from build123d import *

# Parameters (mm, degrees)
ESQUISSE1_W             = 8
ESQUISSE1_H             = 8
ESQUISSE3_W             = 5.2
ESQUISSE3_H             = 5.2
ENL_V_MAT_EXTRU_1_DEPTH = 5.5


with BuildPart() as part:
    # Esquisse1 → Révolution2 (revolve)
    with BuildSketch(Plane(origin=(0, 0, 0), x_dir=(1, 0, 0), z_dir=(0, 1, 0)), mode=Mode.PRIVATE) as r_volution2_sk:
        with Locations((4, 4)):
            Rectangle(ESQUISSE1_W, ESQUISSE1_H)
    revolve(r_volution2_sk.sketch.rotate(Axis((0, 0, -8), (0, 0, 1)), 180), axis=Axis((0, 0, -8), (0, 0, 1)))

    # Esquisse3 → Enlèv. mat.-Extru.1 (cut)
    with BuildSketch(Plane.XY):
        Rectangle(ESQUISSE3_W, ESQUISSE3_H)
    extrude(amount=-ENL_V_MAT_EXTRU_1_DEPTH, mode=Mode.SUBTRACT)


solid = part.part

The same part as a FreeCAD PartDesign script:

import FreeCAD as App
import Part
import Sketcher
from FreeCAD import Vector
Q = App.Units.Quantity


def add_polygon(sketch, points):
    """Adds a closed chain of lines whose ends are joined by coincident constraints."""
    first, n = sketch.GeometryCount, len(points)
    for a, b in zip(points, points[1:] + points[:1]):
        sketch.addGeometry(Part.LineSegment(App.Vector(*a, 0), App.Vector(*b, 0)), False)
    for i in range(n):
        sketch.addConstraint(Sketcher.Constraint("Coincident", first + i, 2, first + (i + 1) % n, 1))

doc = App.newDocument("Part")
body = doc.addObject("PartDesign::Body", "Body")

sketch1 = body.newObject("Sketcher::SketchObject", "Sketch")
sketch1.AttachmentSupport = (doc.getObject("XZ_Plane"), [""])
sketch1.MapMode = "FlatFace"
add_polygon(sketch1, [(0, -8), (0, 0), (8, 0), (8, -8)])
sketch1.addConstraint([
    Sketcher.Constraint("Vertical", 0),
    Sketcher.Constraint("Horizontal", 1),
    Sketcher.Constraint("Vertical", 2),
    Sketcher.Constraint("Horizontal", 3),
    Sketcher.Constraint("Coincident", 0, 2, -1, 1),
    Sketcher.Constraint("Equal", 3, 0),
    Sketcher.Constraint("DistanceX", 1, 1, 1, 2, Q("8 mm")),
])
revolution = body.newObject("PartDesign::Revolution", "Revolution")
revolution.Profile = sketch1
revolution.ReferenceAxis = (sketch1, ["V_Axis"])
revolution.Angle = 360

sketch2 = body.newObject("Sketcher::SketchObject", "Sketch001")
sketch2.AttachmentSupport = (doc.getObject("XY_Plane"), [""])
sketch2.MapMode = "FlatFace"
add_polygon(sketch2, [(-3, 3), (-3, -3), (3, -3), (3, 3)])
sketch2.addConstraint([
    Sketcher.Constraint("Vertical", 0),
    Sketcher.Constraint("Horizontal", 1),
    Sketcher.Constraint("Vertical", 2),
    Sketcher.Constraint("Horizontal", 3),
    Sketcher.Constraint("Symmetric", 0, 2, 2, 2, -1, 1),
    Sketcher.Constraint("Equal", 3, 0),
    Sketcher.Constraint("DistanceX", 1, 1, 1, 2, Q("5.2 mm")),
])
pocket1 = body.newObject("PartDesign::Pocket", "Pocket")
pocket1.Profile = sketch2
pocket1.Length = 5.5

doc.recompute()
